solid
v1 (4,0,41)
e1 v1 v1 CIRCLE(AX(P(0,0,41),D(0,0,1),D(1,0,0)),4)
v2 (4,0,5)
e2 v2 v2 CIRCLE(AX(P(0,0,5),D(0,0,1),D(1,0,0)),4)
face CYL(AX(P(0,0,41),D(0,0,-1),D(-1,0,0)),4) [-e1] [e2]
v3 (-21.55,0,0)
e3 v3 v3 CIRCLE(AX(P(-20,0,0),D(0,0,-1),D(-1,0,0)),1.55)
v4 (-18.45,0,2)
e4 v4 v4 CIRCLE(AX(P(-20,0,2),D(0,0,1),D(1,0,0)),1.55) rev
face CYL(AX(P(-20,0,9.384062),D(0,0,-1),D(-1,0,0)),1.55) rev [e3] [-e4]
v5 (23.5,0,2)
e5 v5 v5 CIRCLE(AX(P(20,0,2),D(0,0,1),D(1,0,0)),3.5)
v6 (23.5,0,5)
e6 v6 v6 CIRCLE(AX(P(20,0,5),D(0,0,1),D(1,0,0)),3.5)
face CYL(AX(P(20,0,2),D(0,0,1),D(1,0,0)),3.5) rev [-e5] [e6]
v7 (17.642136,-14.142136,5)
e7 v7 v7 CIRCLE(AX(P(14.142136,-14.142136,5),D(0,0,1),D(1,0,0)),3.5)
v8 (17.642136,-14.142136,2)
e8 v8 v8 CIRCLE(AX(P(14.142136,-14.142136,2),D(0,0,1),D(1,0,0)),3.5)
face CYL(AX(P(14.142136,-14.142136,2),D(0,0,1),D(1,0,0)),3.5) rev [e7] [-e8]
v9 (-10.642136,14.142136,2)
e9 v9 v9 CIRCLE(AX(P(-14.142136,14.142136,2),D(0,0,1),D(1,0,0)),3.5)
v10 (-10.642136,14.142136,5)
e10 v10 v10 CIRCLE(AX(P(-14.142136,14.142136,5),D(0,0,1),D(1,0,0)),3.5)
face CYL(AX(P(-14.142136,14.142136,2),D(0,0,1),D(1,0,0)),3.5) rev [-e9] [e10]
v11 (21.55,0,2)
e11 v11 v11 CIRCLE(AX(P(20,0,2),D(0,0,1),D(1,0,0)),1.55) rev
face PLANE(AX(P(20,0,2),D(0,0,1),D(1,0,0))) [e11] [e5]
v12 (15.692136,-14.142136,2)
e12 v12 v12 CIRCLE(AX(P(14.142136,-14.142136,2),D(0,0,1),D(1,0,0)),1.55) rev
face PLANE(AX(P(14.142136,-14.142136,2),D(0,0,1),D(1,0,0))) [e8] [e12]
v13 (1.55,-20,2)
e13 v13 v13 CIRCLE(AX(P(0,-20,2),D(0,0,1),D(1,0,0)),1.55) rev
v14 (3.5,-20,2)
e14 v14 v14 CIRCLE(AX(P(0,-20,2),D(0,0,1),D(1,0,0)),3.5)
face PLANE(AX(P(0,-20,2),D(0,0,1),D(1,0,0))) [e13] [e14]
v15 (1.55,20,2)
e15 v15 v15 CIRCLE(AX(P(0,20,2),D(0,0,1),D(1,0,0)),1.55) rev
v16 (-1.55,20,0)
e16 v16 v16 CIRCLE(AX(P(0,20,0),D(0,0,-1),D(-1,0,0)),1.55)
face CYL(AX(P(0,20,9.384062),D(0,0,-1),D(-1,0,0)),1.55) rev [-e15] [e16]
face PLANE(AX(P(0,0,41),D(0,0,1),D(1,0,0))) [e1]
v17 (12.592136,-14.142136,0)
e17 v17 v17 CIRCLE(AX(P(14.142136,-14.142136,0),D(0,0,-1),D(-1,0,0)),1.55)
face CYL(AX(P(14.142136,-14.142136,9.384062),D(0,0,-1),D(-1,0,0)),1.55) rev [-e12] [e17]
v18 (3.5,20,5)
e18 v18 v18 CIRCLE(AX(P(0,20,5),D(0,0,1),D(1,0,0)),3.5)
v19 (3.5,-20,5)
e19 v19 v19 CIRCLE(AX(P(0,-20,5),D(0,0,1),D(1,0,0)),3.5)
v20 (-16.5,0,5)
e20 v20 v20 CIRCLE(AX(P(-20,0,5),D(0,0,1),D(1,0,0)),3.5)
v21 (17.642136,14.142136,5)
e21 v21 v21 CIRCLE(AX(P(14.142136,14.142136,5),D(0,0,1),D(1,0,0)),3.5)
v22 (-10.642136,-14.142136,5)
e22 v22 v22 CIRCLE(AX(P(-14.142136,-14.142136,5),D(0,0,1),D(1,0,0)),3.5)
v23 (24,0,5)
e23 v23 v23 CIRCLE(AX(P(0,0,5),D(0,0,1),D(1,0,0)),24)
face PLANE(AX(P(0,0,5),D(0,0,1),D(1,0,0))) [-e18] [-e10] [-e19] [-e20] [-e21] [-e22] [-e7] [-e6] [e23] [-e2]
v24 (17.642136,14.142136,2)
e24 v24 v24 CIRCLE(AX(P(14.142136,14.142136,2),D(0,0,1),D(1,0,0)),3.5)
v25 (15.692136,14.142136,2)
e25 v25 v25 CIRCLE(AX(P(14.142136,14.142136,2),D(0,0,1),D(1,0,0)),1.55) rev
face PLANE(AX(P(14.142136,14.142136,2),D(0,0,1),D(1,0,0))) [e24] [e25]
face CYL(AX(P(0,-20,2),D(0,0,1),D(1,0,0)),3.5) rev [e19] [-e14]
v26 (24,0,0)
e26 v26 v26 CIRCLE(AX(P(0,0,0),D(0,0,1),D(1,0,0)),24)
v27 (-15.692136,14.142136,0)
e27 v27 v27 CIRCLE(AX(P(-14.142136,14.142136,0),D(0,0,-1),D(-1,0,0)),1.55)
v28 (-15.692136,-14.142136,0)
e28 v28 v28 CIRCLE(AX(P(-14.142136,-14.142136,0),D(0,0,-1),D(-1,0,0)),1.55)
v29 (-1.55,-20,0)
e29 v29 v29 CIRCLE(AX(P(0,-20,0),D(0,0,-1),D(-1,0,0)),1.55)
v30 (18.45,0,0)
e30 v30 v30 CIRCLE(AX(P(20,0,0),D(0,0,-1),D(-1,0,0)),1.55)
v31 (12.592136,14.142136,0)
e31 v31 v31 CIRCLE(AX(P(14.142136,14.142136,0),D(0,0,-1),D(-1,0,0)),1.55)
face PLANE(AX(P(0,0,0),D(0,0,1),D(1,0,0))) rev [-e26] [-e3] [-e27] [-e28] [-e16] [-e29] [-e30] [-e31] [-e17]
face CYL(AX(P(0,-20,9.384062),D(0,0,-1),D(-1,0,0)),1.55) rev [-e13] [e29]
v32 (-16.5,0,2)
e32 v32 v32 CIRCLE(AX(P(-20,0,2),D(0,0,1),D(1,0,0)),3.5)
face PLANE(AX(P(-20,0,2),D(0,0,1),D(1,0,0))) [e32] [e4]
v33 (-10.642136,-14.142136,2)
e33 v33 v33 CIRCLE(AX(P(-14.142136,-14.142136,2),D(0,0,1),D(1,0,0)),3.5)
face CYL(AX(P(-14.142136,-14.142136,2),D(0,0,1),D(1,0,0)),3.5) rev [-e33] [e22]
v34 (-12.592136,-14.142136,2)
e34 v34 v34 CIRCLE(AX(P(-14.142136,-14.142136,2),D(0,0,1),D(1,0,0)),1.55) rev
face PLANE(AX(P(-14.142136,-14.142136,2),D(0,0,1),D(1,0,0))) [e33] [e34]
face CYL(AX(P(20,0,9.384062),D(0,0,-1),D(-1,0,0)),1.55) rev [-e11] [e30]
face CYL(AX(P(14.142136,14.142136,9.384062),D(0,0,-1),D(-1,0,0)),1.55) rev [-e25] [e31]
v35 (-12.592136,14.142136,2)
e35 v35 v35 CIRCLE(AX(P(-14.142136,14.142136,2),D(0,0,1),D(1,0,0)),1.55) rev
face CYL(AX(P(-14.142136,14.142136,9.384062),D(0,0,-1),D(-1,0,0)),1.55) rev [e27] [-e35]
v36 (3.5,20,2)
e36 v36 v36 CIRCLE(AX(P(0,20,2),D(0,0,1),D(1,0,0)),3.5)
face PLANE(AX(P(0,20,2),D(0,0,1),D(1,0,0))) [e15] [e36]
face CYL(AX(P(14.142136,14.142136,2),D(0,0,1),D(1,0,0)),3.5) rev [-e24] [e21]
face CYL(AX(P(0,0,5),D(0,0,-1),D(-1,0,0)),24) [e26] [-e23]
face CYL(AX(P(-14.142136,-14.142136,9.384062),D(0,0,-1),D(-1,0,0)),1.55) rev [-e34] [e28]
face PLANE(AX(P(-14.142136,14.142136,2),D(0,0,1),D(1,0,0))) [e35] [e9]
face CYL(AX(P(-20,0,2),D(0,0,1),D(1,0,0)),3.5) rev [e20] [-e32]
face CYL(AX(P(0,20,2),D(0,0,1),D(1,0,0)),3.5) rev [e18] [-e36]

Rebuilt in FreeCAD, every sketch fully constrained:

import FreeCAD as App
import Part
import Sketcher

V = App.Vector
Q = App.Units.Quantity

doc = App.newDocument("Part")
body = doc.addObject("PartDesign::Body", "Body")

sketch1 = body.newObject("Sketcher::SketchObject", "Sketch")
sketch1.AttachmentSupport = (doc.getObject("XY_Plane"), [""])
sketch1.MapMode = "FlatFace"
sketch1.addGeometry(Part.Circle(V(0, 0, 0), V(0, 0, 1), 24), False)
sketch1.addConstraint([
    Sketcher.Constraint("Coincident", 0, 3, -1, 1),
    Sketcher.Constraint("Diameter", 0, Q("48 mm")),
])
pad1 = body.newObject("PartDesign::Pad", "Pad")
pad1.Profile = sketch1
pad1.Length = 5

sketch2 = body.newObject("Sketcher::SketchObject", "Sketch001")
sketch2.AttachmentSupport = (doc.getObject("XY_Plane"), [""])
sketch2.MapMode = "FlatFace"
sketch2.addGeometry([
    Part.Circle(V(0, 20, 0), V(0, 0, 1), 1.6),
    Part.Circle(V(-14.1, 14.1, 0), V(0, 0, 1), 1.6),
    Part.Circle(V(-20, 0, 0), V(0, 0, 1), 1.6),
    Part.Circle(V(-14.1, -14.1, 0), V(0, 0, 1), 1.6),
    Part.Circle(V(0, -20, 0), V(0, 0, 1), 1.6),
    Part.Circle(V(14.1, -14.1, 0), V(0, 0, 1), 1.6),
    Part.Circle(V(20, 0, 0), V(0, 0, 1), 1.6),
    Part.Circle(V(14.1, 14.1, 0), V(0, 0, 1), 1.6),
], False)
sketch2.addConstraint([
    Sketcher.Constraint("Equal", 0, 1),
    Sketcher.Constraint("Equal", 1, 2),
    Sketcher.Constraint("Equal", 2, 3),
    Sketcher.Constraint("Equal", 3, 4),
    Sketcher.Constraint("Equal", 4, 5),
    Sketcher.Constraint("Equal", 5, 6),
    Sketcher.Constraint("Equal", 6, 7),
    Sketcher.Constraint("Symmetric", 0, 3, 4, 3, -1, 1),
    Sketcher.Constraint("Symmetric", 1, 3, 5, 3, -1, 1),
    Sketcher.Constraint("Symmetric", 2, 3, 6, 3, -1, 1),
    Sketcher.Constraint("Symmetric", 3, 3, 7, 3, -1, 1),
    Sketcher.Constraint("Symmetric", 3, 3, 5, 3, -2),
    Sketcher.Constraint("PointOnObject", 0, 3, -2),
    Sketcher.Constraint("PointOnObject", 2, 3, -1),
    Sketcher.Constraint("Diameter", 0, Q("3.1 mm")),
    Sketcher.Constraint("DistanceY", -1, 1, 0, 3, Q("20 mm")),
    Sketcher.Constraint("DistanceX", 2, 3, -1, 1, Q("20 mm")),
    Sketcher.Constraint("DistanceY", 3, 3, 1, 3, Q("28.284271 mm")),
    Sketcher.Constraint("DistanceX", 3, 3, 5, 3, Q("28.284271 mm")),
])
pocket1 = body.newObject("PartDesign::Pocket", "Pocket")
pocket1.Profile = sketch2
pocket1.Length = 5
pocket1.Reversed = True

sketch3 = body.newObject("Sketcher::SketchObject", "Sketch002")
sketch3.AttachmentSupport = (doc.getObject("XY_Plane"), [""])
sketch3.MapMode = "FlatFace"
sketch3.AttachmentOffset = App.Placement(V(0, 0, 5), App.Rotation())
sketch3.addGeometry(Part.Circle(V(0, 0, 0), V(0, 0, 1), 4), False)
sketch3.addConstraint([
    Sketcher.Constraint("Coincident", 0, 3, -1, 1),
    Sketcher.Constraint("Diameter", 0, Q("8 mm")),
])
pad2 = body.newObject("PartDesign::Pad", "Pad001")
pad2.Profile = sketch3
pad2.Length = 36

sketch4 = body.newObject("Sketcher::SketchObject", "Sketch003")
sketch4.AttachmentSupport = (doc.getObject("XY_Plane"), [""])
sketch4.MapMode = "FlatFace"
sketch4.AttachmentOffset = App.Placement(V(0, 0, 5), App.Rotation())
sketch4.addGeometry([
    Part.Circle(V(0, 20, 0), V(0, 0, 1), 3.5),
    Part.Circle(V(14.1, 14.1, 0), V(0, 0, 1), 3.5),
    Part.Circle(V(20, 0, 0), V(0, 0, 1), 3.5),
    Part.Circle(V(14.1, -14.1, 0), V(0, 0, 1), 3.5),
    Part.Circle(V(0, -20, 0), V(0, 0, 1), 3.5),
    Part.Circle(V(-14.1, -14.1, 0), V(0, 0, 1), 3.5),
    Part.Circle(V(-20, 0, 0), V(0, 0, 1), 3.5),
    Part.Circle(V(-14.1, 14.1, 0), V(0, 0, 1), 3.5),
], False)
sketch4.addConstraint([
    Sketcher.Constraint("Equal", 0, 1),
    Sketcher.Constraint("Equal", 1, 2),
    Sketcher.Constraint("Equal", 2, 3),
    Sketcher.Constraint("Equal", 3, 4),
    Sketcher.Constraint("Equal", 4, 5),
    Sketcher.Constraint("Equal", 5, 6),
    Sketcher.Constraint("Equal", 6, 7),
    Sketcher.Constraint("Symmetric", 0, 3, 4, 3, -1, 1),
    Sketcher.Constraint("Symmetric", 1, 3, 5, 3, -1, 1),
    Sketcher.Constraint("Symmetric", 2, 3, 6, 3, -1, 1),
    Sketcher.Constraint("Symmetric", 3, 3, 7, 3, -1, 1),
    Sketcher.Constraint("Symmetric", 3, 3, 5, 3, -2),
    Sketcher.Constraint("PointOnObject", 0, 3, -2),
    Sketcher.Constraint("PointOnObject", 2, 3, -1),
    Sketcher.Constraint("Diameter", 0, Q("7 mm")),
    Sketcher.Constraint("DistanceY", -1, 1, 0, 3, Q("20 mm")),
    Sketcher.Constraint("DistanceX", -1, 1, 2, 3, Q("20 mm")),
    Sketcher.Constraint("DistanceY", 3, 3, 1, 3, Q("28.284271 mm")),
    Sketcher.Constraint("DistanceX", 5, 3, 3, 3, Q("28.284271 mm")),
])
pocket2 = body.newObject("PartDesign::Pocket", "Pocket001")
pocket2.Profile = sketch4
pocket2.Length = 3

doc.recompute()
